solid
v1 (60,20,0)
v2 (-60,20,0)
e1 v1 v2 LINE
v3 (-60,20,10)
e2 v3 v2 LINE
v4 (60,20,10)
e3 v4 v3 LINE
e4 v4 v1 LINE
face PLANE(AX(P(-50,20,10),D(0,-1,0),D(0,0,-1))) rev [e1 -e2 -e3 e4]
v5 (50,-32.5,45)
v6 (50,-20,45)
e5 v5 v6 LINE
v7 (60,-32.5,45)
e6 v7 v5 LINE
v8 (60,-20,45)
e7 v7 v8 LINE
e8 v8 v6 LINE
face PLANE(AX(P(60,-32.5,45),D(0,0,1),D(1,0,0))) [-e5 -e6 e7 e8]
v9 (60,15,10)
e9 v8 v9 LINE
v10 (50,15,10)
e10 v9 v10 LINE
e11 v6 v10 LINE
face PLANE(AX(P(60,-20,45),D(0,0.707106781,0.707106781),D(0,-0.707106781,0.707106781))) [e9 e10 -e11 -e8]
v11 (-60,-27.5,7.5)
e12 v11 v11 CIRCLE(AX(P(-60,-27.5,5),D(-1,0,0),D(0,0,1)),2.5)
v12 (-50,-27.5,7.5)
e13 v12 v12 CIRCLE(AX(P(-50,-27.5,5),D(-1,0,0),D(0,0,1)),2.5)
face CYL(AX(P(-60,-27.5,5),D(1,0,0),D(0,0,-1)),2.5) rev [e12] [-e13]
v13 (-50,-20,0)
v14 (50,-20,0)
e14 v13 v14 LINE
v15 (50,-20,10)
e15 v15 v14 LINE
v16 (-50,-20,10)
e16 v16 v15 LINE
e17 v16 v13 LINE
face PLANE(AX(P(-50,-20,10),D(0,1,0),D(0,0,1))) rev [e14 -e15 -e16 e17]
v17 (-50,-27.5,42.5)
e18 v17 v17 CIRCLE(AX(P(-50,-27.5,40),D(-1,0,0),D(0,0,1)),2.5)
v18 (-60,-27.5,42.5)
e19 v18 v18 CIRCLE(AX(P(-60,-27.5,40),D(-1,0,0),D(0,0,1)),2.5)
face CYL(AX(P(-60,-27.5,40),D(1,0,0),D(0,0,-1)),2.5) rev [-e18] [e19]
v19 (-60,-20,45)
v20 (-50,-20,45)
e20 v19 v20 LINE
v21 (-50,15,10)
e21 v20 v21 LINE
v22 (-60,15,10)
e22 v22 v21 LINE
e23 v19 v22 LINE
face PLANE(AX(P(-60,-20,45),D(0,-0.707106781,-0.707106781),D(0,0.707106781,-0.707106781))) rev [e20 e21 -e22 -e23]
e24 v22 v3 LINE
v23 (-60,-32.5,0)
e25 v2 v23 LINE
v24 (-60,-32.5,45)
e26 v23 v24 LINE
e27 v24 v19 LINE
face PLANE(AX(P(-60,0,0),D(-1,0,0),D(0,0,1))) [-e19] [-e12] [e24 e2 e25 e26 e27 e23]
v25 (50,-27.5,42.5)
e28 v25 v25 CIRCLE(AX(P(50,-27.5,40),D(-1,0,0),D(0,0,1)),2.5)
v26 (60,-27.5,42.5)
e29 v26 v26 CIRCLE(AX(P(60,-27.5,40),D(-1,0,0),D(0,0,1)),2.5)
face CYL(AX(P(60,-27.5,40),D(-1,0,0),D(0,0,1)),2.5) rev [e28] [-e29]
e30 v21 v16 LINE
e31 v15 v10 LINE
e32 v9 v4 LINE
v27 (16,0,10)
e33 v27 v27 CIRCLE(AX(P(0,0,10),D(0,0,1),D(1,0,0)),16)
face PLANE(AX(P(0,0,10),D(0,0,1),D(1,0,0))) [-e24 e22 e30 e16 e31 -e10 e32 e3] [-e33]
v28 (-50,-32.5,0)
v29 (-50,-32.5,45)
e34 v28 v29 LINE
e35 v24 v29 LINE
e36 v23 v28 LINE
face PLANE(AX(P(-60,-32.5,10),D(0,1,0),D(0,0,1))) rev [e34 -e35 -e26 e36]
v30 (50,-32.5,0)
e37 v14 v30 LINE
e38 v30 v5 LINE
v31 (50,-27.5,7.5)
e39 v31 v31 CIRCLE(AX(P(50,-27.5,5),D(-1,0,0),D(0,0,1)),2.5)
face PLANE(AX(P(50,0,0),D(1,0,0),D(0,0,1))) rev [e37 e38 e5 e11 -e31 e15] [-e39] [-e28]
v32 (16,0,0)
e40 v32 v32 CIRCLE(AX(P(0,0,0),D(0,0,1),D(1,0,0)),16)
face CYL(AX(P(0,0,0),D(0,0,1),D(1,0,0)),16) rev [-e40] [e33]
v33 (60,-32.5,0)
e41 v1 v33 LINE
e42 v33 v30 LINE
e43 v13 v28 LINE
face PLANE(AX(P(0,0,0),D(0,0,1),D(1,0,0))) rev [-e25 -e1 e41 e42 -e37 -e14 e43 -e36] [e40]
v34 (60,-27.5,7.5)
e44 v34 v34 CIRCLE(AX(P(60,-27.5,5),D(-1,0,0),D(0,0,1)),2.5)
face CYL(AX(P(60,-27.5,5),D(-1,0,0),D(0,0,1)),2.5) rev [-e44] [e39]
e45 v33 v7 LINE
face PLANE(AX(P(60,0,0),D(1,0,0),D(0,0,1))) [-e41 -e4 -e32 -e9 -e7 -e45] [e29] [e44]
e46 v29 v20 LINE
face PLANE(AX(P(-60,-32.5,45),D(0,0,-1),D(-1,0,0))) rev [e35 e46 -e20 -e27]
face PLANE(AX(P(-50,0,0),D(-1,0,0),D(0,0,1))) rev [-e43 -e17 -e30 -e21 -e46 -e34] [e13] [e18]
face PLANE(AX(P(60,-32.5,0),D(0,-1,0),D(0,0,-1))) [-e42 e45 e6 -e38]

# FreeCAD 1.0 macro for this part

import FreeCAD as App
import Part
import Sketcher
from FreeCAD import Vector
Q = App.Units.Quantity

doc = App.newDocument("Part")
body = doc.addObject("PartDesign::Body", "Body")

# Sketch on XY plane
sketch1 = doc.addObject("Sketcher::SketchObject", "Sketch")
body.addObject(sketch1)
sketch1.AttachmentSupport = (doc.XY_Plane, [""])
sketch1.MapMode = "FlatFace"
sketch1.addGeometry([
    Part.LineSegment(Vector(-50, 20, 0), Vector(-50, -20, 0)),
    Part.LineSegment(Vector(-50, -20, 0), Vector(50, -20, 0)),
    Part.LineSegment(Vector(50, -20, 0), Vector(50, 20, 0)),
    Part.LineSegment(Vector(50, 20, 0), Vector(-50, 20, 0)),
], False)
sketch1.addConstraint([
    Sketcher.Constraint("Coincident", 0, 2, 1, 1),
    Sketcher.Constraint("Coincident", 1, 2, 2, 1),
    Sketcher.Constraint("Coincident", 2, 2, 3, 1),
    Sketcher.Constraint("Coincident", 3, 2, 0, 1),
    Sketcher.Constraint("Vertical", 0),
    Sketcher.Constraint("Horizontal", 1),
    Sketcher.Constraint("Vertical", 2),
    Sketcher.Constraint("Horizontal", 3),
    Sketcher.Constraint("Symmetric", 0, 2, 2, 2, -1, 1),
    Sketcher.Constraint("DistanceX", 1, 1, 1, 2, 100.0),
    Sketcher.Constraint("DistanceY", 0, 2, 0, 1, 40.0),
])
pad1 = doc.addObject("PartDesign::Pad", "Pad")
body.addObject(pad1)
pad1.Profile = sketch1
pad1.Length = 10

# Sketch on XY plane
sketch2 = doc.addObject("Sketcher::SketchObject", "Sketch001")
body.addObject(sketch2)
sketch2.AttachmentSupport = (doc.XY_Plane, [""])
sketch2.MapMode = "FlatFace"
sketch2.AttachmentOffset = App.Placement(Vector(0, 0, 10), App.Rotation())
sketch2.addGeometry(Part.Circle(Vector(0, 0, 0), Vector(0, 0, 1), 8), False)
sketch2.addConstraint([
    Sketcher.Constraint("Coincident", 0, 3, -1, 1),
    Sketcher.Constraint("Diameter", 0, 15.0),
])
pocket1 = doc.addObject("PartDesign::Pocket", "Pocket")
body.addObject(pocket1)
pocket1.Profile = sketch2
pocket1.Type = "ThroughAll"

# Sketch on XY plane
sketch3 = doc.addObject("Sketcher::SketchObject", "Sketch002")
body.addObject(sketch3)
sketch3.AttachmentSupport = (doc.XY_Plane, [""])
sketch3.MapMode = "FlatFace"
sketch3.AttachmentOffset = App.Placement(Vector(0, 0, 10), App.Rotation())
sketch3.addGeometry(Part.Circle(Vector(0, 0, 0), Vector(0, 0, 1), 16), False)
sketch3.addConstraint([
    Sketcher.Constraint("Coincident", 0, 3, -1, 1),
    Sketcher.Constraint("Diameter", 0, 32.0),
])
pocket2 = doc.addObject("PartDesign::Pocket", "Pocket001")
body.addObject(pocket2)
pocket2.Profile = sketch3
pocket2.Type = "ThroughAll"

# Sketch on YZ plane
sketch4 = doc.addObject("Sketcher::SketchObject", "Sketch003")
body.addObject(sketch4)
sketch4.AttachmentSupport = (doc.YZ_Plane, [""])
sketch4.MapMode = "FlatFace"
sketch4.AttachmentOffset = App.Placement(Vector(0, 0, -50), App.Rotation())
sketch4.addGeometry([
    Part.LineSegment(Vector(20, 10, 0), Vector(20, 0, 0)),  # 0
    Part.LineSegment(Vector(20, 0, 0), Vector(-32.5, 0, 0)),  # 1
    Part.LineSegment(Vector(-32.5, 0, 0), Vector(-32.5, 45, 0)),  # 2
    Part.LineSegment(Vector(-32.5, 45, 0), Vector(-20, 45, 0)),  # 3
    Part.LineSegment(Vector(-20, 45, 0), Vector(15, 10, 0)),  # 4
    Part.LineSegment(Vector(15, 10, 0), Vector(20, 10, 0)),  # 5
    Part.Circle(Vector(-27.5, 40, 0), Vector(0, 0, 1), 2.5),  # 6
    Part.Circle(Vector(-27.5, 5, 0), Vector(0, 0, 1), 2.5),  # 7
], False)
sketch4.addConstraint([
    Sketcher.Constraint("Coincident", 0, 2, 1, 1),
    Sketcher.Constraint("Coincident", 1, 2, 2, 1),
    Sketcher.Constraint("Coincident", 2, 2, 3, 1),
    Sketcher.Constraint("Coincident", 3, 2, 4, 1),
    Sketcher.Constraint("Coincident", 4, 2, 5, 1),
    Sketcher.Constraint("Coincident", 5, 2, 0, 1),
    Sketcher.Constraint("Vertical", 0),
    Sketcher.Constraint("Horizontal", 1),
    Sketcher.Constraint("Vertical", 2),
    Sketcher.Constraint("Horizontal", 3),
    Sketcher.Constraint("Horizontal", 5),
    Sketcher.Constraint("Equal", 6, 7),
    Sketcher.Constraint("PointOnObject", 0, 2, -1),
    Sketcher.Constraint("Vertical", 6, 3, 7, 3),
    Sketcher.Constraint("Diameter", 6, 5.0),
    Sketcher.Constraint("DistanceX", 5, 1, 5, 2, 5.0),
    Sketcher.Constraint("DistanceY", 0, 2, 0, 1, 10.0),
    Sketcher.Constraint("DistanceY", 2, 1, 2, 2, 45.0),
    Sketcher.Constraint("Angle", 4, Q("-45 deg")),
    Sketcher.Constraint("DistanceX", 1, 2, 1, 1, 52.5),
    Sketcher.Constraint("DistanceY", -1, 1, 6, 3, 40.0),
    Sketcher.Constraint("DistanceY", -1, 1, 7, 3, 5.0),
    Sketcher.Constraint("DistanceX", -1, 1, 0, 2, 20.0),
    Sketcher.Constraint("DistanceX", 1, 2, 7, 3, 5.0),
])
pad2 = doc.addObject("PartDesign::Pad", "Pad001")
body.addObject(pad2)
pad2.Profile = sketch4
pad2.Length = 10
pad2.Reversed = True
doc.recompute()

mirrored = doc.addObject("PartDesign::Mirrored", "Mirrored")
body.addObject(mirrored)
mirrored.Originals = [pad2]
mirrored.MirrorPlane = (doc.YZ_Plane, [""])
body.Tip = mirrored

doc.recompute()
